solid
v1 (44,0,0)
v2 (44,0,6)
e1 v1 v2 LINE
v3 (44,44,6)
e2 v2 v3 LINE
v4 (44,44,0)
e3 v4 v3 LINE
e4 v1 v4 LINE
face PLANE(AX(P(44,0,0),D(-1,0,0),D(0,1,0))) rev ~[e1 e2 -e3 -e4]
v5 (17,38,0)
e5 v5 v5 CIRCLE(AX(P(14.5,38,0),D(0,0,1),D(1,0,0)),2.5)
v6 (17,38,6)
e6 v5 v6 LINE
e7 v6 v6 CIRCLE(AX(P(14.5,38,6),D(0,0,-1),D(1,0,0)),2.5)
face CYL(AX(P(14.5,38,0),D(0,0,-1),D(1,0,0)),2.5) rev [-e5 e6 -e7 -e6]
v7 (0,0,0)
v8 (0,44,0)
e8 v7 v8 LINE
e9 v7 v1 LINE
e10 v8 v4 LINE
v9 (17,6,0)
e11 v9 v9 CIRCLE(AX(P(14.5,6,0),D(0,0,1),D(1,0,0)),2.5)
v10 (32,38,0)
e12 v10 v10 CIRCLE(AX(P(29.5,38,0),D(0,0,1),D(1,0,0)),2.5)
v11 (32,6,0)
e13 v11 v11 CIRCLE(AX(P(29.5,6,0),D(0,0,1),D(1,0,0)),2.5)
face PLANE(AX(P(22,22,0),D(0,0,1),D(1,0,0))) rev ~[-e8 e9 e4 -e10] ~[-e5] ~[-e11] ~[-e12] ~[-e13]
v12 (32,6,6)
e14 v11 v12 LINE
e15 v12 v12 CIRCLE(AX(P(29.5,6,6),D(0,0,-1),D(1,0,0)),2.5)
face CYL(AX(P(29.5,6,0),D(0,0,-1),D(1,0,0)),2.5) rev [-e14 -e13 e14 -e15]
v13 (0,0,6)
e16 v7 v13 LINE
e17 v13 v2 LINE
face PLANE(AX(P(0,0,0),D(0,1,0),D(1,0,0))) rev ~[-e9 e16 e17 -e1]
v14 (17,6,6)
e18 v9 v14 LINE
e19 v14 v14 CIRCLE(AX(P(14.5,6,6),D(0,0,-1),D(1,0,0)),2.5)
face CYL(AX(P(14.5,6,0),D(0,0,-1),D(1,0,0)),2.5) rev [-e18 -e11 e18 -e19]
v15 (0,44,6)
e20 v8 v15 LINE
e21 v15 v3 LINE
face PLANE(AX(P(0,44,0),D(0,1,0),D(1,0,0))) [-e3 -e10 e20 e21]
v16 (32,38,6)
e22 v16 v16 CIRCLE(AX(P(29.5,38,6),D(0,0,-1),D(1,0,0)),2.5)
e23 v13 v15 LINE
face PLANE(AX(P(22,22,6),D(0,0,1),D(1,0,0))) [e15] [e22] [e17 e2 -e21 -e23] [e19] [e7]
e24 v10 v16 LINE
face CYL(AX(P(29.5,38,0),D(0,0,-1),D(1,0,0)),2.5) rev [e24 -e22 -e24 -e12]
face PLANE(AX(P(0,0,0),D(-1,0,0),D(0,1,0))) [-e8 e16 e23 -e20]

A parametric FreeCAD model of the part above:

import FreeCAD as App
import Part
import Sketcher

V = App.Vector
Q = App.Units.Quantity


def add_polygon(sketch, points):
    """Adds a closed chain of lines whose ends are joined by coincident constraints."""
    first, n = sketch.GeometryCount, len(points)
    for a, b in zip(points, points[1:] + points[:1]):
        sketch.addGeometry(Part.LineSegment(App.Vector(*a, 0), App.Vector(*b, 0)), False)
    for i in range(n):
        sketch.addConstraint(Sketcher.Constraint("Coincident", first + i, 2, first + (i + 1) % n, 1))

doc = App.newDocument("Part")
body = doc.addObject("PartDesign::Body", "Body")

# Sketch on XY plane
sketch1 = body.newObject("Sketcher::SketchObject", "Sketch")
sketch1.AttachmentSupport = (doc.getObject("XY_Plane"), [""])
sketch1.MapMode = "FlatFace"
sketch1.addGeometry(Part.Circle(V(14.5, 38, 0), V(0, 0, 1), 2.5), False)
sketch1.addConstraint([
    Sketcher.Constraint("Diameter", 0, Q("5 mm")),
    Sketcher.Constraint("DistanceY", -1, 1, 0, 3, Q("38 mm")),
    Sketcher.Constraint("DistanceX", -1, 1, 0, 3, Q("14.5 mm")),
])
pad1 = body.newObject("PartDesign::Pad", "Pad")
pad1.Profile = sketch1
pad1.Length = 10
body2 = doc.addObject("PartDesign::Body", "Body001")

# Sketch on XY plane
sketch2 = body2.newObject("Sketcher::SketchObject", "Sketch001")
sketch2.AttachmentSupport = (doc.getObject("XY_Plane001"), [""])
sketch2.MapMode = "FlatFace"
sketch2.addGeometry(Part.Circle(V(29.5, 38, 0), V(0, 0, 1), 2.5), False)
sketch2.addConstraint([
    Sketcher.Constraint("Diameter", 0, Q("5 mm")),
    Sketcher.Constraint("DistanceY", -1, 1, 0, 3, Q("38 mm")),
    Sketcher.Constraint("DistanceX", -1, 1, 0, 3, Q("29.5 mm")),
])
pad2 = body2.newObject("PartDesign::Pad", "Pad001")
pad2.Profile = sketch2
pad2.Length = 10
body3 = doc.addObject("PartDesign::Body", "Body002")

# Sketch on XY plane
sketch3 = body3.newObject("Sketcher::SketchObject", "Sketch002")
sketch3.AttachmentSupport = (doc.getObject("XY_Plane002"), [""])
sketch3.MapMode = "FlatFace"
sketch3.addGeometry(Part.Circle(V(29.5, 6, 0), V(0, 0, 1), 2.5), False)
sketch3.addConstraint([
    Sketcher.Constraint("Diameter", 0, Q("5 mm")),
    Sketcher.Constraint("DistanceY", -1, 1, 0, 3, Q("6 mm")),
    Sketcher.Constraint("DistanceX", -1, 1, 0, 3, Q("29.5 mm")),
])
pad3 = body3.newObject("PartDesign::Pad", "Pad002")
pad3.Profile = sketch3
pad3.Length = 10
body4 = doc.addObject("PartDesign::Body", "Body003")

# Sketch on XY plane
sketch4 = body4.newObject("Sketcher::SketchObject", "Sketch003")
sketch4.AttachmentSupport = (doc.getObject("XY_Plane003"), [""])
sketch4.MapMode = "FlatFace"
sketch4.addGeometry(Part.Circle(V(14.5, 6, 0), V(0, 0, 1), 2.5), False)
sketch4.addConstraint([
    Sketcher.Constraint("Diameter", 0, Q("5 mm")),
    Sketcher.Constraint("DistanceY", -1, 1, 0, 3, Q("6 mm")),
    Sketcher.Constraint("DistanceX", -1, 1, 0, 3, Q("14.5 mm")),
])
pad4 = body4.newObject("PartDesign::Pad", "Pad003")
pad4.Profile = sketch4
pad4.Length = 10
body5 = doc.addObject("PartDesign::Body", "Body004")

# Sketch on XY plane
sketch5 = body5.newObject("Sketcher::SketchObject", "Sketch004")
sketch5.AttachmentSupport = (doc.getObject("XY_Plane004"), [""])
sketch5.MapMode = "FlatFace"
add_polygon(sketch5, [(0, 44), (0, 0), (44, 0), (44, 44)])  # lines 0-3
sketch5.addConstraint([
    Sketcher.Constraint("Vertical", 0),
    Sketcher.Constraint("Horizontal", 1),
    Sketcher.Constraint("Vertical", 2),
    Sketcher.Constraint("Horizontal", 3),
    Sketcher.Constraint("Coincident", 0, 2, -1, 1),
    Sketcher.Constraint("Equal", 3, 0),
    Sketcher.Constraint("DistanceX", 1, 1, 1, 2, Q("44 mm")),
])
pad5 = body5.newObject("PartDesign::Pad", "Pad004")
pad5.Profile = sketch5
pad5.Length = 6
doc.recompute()

boolean = body5.newObject("PartDesign::Boolean", "Boolean")
boolean.Type = "Cut"
boolean.addObjects([body4])
doc.recompute()

boolean2 = body5.newObject("PartDesign::Boolean", "Boolean001")
boolean2.Type = "Cut"
boolean2.addObjects([body3])
doc.recompute()

boolean3 = body5.newObject("PartDesign::Boolean", "Boolean002")
boolean3.Type = "Cut"
boolean3.addObjects([body2])
doc.recompute()

boolean4 = body5.newObject("PartDesign::Boolean", "Boolean003")
boolean4.Type = "Cut"
boolean4.addObjects([body])

doc.recompute()
